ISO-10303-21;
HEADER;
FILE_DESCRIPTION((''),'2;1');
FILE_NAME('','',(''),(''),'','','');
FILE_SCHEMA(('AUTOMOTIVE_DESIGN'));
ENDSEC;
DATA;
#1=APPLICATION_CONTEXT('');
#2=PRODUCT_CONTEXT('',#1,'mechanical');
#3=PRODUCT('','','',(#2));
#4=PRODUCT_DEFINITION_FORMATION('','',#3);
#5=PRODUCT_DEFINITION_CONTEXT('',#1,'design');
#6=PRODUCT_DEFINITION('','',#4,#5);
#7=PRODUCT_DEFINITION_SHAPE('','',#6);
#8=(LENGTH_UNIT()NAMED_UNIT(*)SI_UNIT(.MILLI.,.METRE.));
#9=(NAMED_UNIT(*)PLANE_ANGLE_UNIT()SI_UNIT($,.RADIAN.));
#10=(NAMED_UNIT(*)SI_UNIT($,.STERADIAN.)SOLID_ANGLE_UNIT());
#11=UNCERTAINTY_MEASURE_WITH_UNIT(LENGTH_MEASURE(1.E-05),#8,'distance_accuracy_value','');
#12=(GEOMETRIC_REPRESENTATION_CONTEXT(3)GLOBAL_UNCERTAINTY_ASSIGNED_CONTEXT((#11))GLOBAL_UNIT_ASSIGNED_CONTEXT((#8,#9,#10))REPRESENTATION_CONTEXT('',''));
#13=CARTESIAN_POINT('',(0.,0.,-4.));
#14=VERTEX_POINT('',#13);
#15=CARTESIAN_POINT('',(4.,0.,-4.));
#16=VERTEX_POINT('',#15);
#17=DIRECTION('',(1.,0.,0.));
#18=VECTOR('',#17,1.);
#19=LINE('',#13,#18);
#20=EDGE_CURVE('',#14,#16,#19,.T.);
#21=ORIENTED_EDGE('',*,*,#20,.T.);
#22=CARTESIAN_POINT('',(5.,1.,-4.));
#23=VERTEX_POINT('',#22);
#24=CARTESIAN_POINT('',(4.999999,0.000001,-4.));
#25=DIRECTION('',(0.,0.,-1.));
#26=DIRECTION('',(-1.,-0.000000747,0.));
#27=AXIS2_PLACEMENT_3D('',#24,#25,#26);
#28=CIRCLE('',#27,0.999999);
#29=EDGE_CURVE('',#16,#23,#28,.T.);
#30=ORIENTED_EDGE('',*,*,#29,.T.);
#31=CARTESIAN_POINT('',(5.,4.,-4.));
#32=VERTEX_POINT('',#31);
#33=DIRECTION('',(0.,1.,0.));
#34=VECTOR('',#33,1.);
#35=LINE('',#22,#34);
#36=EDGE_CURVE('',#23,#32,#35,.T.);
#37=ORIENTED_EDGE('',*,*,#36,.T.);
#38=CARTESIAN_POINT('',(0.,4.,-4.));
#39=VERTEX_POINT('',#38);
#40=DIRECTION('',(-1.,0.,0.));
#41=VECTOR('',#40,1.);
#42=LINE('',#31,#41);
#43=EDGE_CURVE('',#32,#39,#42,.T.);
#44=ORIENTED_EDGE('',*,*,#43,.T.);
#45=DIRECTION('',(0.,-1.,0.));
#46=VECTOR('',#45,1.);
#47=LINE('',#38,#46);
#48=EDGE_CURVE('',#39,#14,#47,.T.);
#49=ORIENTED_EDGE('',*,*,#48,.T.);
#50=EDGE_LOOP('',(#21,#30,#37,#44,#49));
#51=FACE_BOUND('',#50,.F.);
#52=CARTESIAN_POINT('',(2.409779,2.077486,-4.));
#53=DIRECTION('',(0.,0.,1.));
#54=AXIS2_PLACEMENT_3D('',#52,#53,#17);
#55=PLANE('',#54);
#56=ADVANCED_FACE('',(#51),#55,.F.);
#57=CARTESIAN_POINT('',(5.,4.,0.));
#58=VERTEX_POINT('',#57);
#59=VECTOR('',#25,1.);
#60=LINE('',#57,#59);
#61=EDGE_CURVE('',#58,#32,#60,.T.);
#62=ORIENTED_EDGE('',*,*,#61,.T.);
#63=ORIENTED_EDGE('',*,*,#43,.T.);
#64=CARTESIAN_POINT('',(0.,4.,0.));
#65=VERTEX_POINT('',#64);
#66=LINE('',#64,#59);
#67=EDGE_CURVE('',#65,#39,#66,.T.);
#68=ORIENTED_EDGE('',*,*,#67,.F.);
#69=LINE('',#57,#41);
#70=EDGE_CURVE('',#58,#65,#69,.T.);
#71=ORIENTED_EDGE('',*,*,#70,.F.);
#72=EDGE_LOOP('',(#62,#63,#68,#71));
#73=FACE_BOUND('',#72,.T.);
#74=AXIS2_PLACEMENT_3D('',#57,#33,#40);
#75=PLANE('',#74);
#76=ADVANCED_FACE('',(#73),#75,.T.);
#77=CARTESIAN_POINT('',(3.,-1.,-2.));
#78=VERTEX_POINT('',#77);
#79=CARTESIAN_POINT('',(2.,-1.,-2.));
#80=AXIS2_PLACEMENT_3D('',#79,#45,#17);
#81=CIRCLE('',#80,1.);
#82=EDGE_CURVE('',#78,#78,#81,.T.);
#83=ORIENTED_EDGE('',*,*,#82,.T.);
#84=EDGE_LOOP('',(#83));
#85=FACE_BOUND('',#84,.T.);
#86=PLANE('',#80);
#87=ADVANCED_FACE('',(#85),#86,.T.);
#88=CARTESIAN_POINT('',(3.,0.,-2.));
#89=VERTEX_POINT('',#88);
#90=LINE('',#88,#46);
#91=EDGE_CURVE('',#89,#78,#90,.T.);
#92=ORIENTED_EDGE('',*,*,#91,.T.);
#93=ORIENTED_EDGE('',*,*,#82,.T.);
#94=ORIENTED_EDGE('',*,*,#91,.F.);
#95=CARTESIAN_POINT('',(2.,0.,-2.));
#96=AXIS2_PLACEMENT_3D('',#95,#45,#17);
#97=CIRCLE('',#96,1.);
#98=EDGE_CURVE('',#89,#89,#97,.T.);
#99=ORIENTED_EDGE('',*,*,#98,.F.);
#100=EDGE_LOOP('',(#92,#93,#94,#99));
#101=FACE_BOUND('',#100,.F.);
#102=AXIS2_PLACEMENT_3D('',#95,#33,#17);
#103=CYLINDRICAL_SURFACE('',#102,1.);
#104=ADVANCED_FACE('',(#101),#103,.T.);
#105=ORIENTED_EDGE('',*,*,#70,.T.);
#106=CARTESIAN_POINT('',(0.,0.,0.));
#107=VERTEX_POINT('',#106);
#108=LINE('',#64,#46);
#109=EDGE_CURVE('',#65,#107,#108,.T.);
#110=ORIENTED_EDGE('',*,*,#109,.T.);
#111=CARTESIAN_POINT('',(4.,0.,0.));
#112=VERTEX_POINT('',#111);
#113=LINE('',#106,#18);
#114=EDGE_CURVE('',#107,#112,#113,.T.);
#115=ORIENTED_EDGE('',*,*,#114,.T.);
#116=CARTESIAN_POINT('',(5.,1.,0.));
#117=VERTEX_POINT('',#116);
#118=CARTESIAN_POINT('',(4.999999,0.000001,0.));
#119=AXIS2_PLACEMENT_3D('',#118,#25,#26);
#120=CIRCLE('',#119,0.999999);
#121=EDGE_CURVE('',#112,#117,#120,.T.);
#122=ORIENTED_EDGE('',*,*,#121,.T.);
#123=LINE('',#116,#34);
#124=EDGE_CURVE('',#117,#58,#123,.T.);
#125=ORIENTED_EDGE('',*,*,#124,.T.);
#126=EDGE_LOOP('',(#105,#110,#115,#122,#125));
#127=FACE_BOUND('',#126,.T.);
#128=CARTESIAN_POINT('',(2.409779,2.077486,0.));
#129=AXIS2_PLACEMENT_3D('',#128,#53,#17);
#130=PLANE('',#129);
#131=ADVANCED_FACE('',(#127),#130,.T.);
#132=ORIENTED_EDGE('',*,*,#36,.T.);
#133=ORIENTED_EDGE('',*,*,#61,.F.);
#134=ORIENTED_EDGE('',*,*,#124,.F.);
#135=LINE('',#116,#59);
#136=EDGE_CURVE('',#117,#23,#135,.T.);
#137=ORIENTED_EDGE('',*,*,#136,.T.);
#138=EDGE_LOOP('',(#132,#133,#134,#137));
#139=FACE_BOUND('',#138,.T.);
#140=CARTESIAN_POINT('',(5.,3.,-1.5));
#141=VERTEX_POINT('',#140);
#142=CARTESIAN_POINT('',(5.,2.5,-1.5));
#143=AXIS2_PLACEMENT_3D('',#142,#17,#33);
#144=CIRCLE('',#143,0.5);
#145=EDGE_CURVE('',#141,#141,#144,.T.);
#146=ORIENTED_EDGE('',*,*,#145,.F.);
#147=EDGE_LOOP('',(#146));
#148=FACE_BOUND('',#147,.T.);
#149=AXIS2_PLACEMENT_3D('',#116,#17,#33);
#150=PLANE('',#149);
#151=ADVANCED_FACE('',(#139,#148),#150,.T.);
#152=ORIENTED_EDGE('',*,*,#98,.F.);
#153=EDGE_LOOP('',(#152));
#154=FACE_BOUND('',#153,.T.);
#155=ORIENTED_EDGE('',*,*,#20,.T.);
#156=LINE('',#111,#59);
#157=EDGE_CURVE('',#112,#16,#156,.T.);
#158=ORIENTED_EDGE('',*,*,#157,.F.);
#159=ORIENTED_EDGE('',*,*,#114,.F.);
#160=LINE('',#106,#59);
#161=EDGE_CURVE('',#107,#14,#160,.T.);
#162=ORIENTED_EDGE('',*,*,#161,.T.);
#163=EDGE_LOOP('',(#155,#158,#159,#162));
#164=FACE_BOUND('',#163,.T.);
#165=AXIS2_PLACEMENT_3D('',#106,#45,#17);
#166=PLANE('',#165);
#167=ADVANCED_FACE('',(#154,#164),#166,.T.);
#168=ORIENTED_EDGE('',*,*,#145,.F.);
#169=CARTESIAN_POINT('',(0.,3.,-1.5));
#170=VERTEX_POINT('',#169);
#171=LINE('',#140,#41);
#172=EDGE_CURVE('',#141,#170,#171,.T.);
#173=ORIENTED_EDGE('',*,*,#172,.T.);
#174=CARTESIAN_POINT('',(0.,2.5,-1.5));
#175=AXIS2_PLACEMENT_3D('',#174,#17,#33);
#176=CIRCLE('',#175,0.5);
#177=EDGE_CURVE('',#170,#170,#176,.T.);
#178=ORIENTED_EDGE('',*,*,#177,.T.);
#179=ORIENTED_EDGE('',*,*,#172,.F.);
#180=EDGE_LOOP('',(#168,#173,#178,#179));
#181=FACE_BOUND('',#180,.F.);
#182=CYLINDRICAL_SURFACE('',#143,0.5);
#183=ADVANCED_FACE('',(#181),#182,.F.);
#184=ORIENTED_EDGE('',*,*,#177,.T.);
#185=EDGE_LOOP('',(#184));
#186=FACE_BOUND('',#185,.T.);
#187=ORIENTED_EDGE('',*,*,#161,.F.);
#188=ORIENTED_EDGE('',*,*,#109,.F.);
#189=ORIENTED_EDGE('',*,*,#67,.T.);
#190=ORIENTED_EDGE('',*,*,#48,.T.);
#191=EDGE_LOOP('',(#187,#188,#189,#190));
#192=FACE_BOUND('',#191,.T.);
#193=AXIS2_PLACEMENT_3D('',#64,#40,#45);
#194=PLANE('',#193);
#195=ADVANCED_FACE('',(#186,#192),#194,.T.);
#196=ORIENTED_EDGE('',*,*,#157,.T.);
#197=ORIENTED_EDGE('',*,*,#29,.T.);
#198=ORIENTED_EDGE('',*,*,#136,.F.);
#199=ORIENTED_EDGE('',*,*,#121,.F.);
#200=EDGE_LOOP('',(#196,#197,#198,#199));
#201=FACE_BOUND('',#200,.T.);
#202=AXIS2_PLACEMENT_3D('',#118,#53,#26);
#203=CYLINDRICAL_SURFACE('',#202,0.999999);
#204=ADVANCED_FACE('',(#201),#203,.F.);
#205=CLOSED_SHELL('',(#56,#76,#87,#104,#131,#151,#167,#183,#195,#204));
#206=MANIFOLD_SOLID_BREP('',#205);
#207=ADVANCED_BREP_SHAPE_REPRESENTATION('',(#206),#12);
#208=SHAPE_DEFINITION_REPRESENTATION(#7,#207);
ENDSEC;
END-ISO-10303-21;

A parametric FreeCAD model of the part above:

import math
import FreeCAD as App
import Part
import Sketcher

V = App.Vector

doc = App.newDocument("Part")
params = doc.addObject("Spreadsheet::Sheet", "Params")
for row, (alias, value) in enumerate([
    ("sketch1_radius", "0.999999 mm"),
    ("sketch1_width", "4 mm"),
    ("sketch1_width2", "5 mm"),
    ("pad1_length", "4 mm"),
    ("sketch2_diameter", "2 mm"),
    ("pad2_length", "1 mm"),
    ("sketch3_diameter", "1 mm"),
    ("pocket1_length", "25 mm"),
], start=1):
    params.set(f"A{row}", alias)
    params.set(f"B{row}", "=" + value)
    params.setAlias(f"B{row}", alias)

body = doc.addObject("PartDesign::Body", "Body")

sketch1 = body.newObject("Sketcher::SketchObject", "Sketch")
sketch1.AttachmentSupport = (doc.getObject("XY_Plane"), [""])
sketch1.MapMode = "FlatFace"
sketch1.addGeometry(Part.LineSegment(V(0, 4, 0), V(0, 0, 0)), False)
sketch1.addGeometry(Part.LineSegment(V(0, 0, 0), V(4, 0, 0)), False)
sketch1.addGeometry(Part.ArcOfCircle(Part.Circle(V(4.999999, 0.000001, 0), V(0, 0, 1), 0.999999), math.radians(89.999957), math.radians(180.000043)), False)
sketch1.addGeometry(Part.LineSegment(V(5, 1, 0), V(5, 4, 0)), False)
sketch1.addGeometry(Part.LineSegment(V(5, 4, 0), V(0, 4, 0)), False)
sketch1.addConstraint(Sketcher.Constraint("Coincident", 0, 2, 1, 1))
sketch1.addConstraint(Sketcher.Constraint("Coincident", 1, 2, 2, 2))
sketch1.addConstraint(Sketcher.Constraint("Coincident", 2, 1, 3, 1))
sketch1.addConstraint(Sketcher.Constraint("Coincident", 3, 2, 4, 1))
sketch1.addConstraint(Sketcher.Constraint("Coincident", 4, 2, 0, 1))
sketch1.addConstraint(Sketcher.Constraint("Vertical", 0))
sketch1.addConstraint(Sketcher.Constraint("Horizontal", 1))
sketch1.addConstraint(Sketcher.Constraint("Vertical", 3))
sketch1.addConstraint(Sketcher.Constraint("Horizontal", 4))
sketch1.addConstraint(Sketcher.Constraint("Coincident", 0, 2, -1, 1))
sketch1.addConstraint(Sketcher.Constraint("PointOnObject", 2, 3, -1))
sketch1.addConstraint(Sketcher.Constraint("Equal", 1, 0))
sketch1.addConstraint(Sketcher.Constraint("Radius", 2, 0.999999))
sketch1.addConstraint(Sketcher.Constraint("DistanceX", 1, 1, 1, 2, 4.0))
sketch1.addConstraint(Sketcher.Constraint("DistanceX", 4, 2, 4, 1, 5.0))
sketch1.setExpression("Constraints[12]", "Params.sketch1_radius")
sketch1.setExpression("Constraints[13]", "Params.sketch1_width")
sketch1.setExpression("Constraints[14]", "Params.sketch1_width2")
pad1 = body.newObject("PartDesign::Pad", "Pad")
pad1.Profile = sketch1
pad1.setExpression("Length", "Params.pad1_length")
pad1.Reversed = True

sketch2 = body.newObject("Sketcher::SketchObject", "Sketch001")
sketch2.AttachmentSupport = (doc.getObject("XZ_Plane"), [""])
sketch2.MapMode = "FlatFace"
sketch2.addGeometry(Part.Circle(V(2, -2, 0), V(0, 0, 1), 1), False)
sketch2.addConstraint(Sketcher.Constraint("Diameter", 0, 2.0))
sketch2.addConstraint(Sketcher.Constraint("DistanceX", -1, 1, 0, 3, 2.0))
sketch2.addConstraint(Sketcher.Constraint("DistanceY", 0, 3, -1, 1, 2.0))
sketch2.setExpression("Constraints[0]", "Params.sketch2_diameter")
pad2 = body.newObject("PartDesign::Pad", "Pad001")
pad2.Profile = sketch2
pad2.setExpression("Length", "Params.pad2_length")

sketch3 = body.newObject("Sketcher::SketchObject", "Sketch002")
sketch3.AttachmentSupport = (doc.getObject("YZ_Plane"), [""])
sketch3.MapMode = "FlatFace"
sketch3.AttachmentOffset = App.Placement(V(0, 0, 5), App.Rotation())
sketch3.addGeometry(Part.Circle(V(2.5, -1.5, 0), V(0, 0, 1), 0.5), False)
sketch3.addConstraint(Sketcher.Constraint("Diameter", 0, 1.0))
sketch3.addConstraint(Sketcher.Constraint("DistanceX", -1, 1, 0, 3, 2.5))
sketch3.addConstraint(Sketcher.Constraint("DistanceY", 0, 3, -1, 1, 1.5))
sketch3.setExpression("Constraints[0]", "Params.sketch3_diameter")
pocket1 = body.newObject("PartDesign::Pocket", "Pocket")
pocket1.Profile = sketch3
pocket1.setExpression("Length", "Params.pocket1_length")

doc.recompute()
